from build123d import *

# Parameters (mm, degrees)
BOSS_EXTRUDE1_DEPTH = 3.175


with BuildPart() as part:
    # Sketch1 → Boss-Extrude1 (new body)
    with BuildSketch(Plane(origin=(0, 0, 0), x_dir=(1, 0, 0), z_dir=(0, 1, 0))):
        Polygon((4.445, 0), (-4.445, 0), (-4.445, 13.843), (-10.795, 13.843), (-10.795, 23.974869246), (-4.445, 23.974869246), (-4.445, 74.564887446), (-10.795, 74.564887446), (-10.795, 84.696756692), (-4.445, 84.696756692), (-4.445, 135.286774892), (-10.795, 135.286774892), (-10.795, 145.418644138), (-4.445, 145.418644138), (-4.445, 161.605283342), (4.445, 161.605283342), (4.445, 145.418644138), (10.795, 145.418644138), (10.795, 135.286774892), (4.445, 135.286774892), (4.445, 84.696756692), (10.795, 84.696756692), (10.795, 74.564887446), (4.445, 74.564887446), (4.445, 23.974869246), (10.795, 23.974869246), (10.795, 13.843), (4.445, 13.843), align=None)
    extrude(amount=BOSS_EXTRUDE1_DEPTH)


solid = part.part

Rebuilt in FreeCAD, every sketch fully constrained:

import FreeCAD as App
import Part
import Sketcher
Q = App.Units.Quantity


def add_polygon(sketch, points):
    """Adds a closed chain of lines whose ends are joined by coincident constraints."""
    first, n = sketch.GeometryCount, len(points)
    for a, b in zip(points, points[1:] + points[:1]):
        sketch.addGeometry(Part.LineSegment(App.Vector(*a, 0), App.Vector(*b, 0)), False)
    for i in range(n):
        sketch.addConstraint(Sketcher.Constraint("Coincident", first + i, 2, first + (i + 1) % n, 1))

doc = App.newDocument("Part")
body = doc.addObject("PartDesign::Body", "Body")

sketch1 = doc.addObject("Sketcher::SketchObject", "Sketch")
body.addObject(sketch1)
sketch1.AttachmentSupport = (doc.XZ_Plane, [""])
sketch1.MapMode = "FlatFace"
add_polygon(sketch1, [(-4, 0), (4, 0), (4, -14), (11, -14), (11, -24), (4, -24), (4, -75), (11, -75), (11, -85), (4, -85), (4, -135), (11, -135), (11, -145), (4, -145), (4, -162), (-4, -162), (-4, -145), (-11, -145), (-11, -135), (-4, -135), (-4, -85), (-11, -85), (-11, -75), (-4, -75), (-4, -24), (-11, -24), (-11, -14), (-4, -14)])
sketch1.addConstraint([
    Sketcher.Constraint("Horizontal", 0),
    Sketcher.Constraint("Vertical", 1),
    Sketcher.Constraint("Horizontal", 2),
    Sketcher.Constraint("Vertical", 3),
    Sketcher.Constraint("Horizontal", 4),
    Sketcher.Constraint("Vertical", 5),
    Sketcher.Constraint("Horizontal", 6),
    Sketcher.Constraint("Vertical", 7),
    Sketcher.Constraint("Horizontal", 8),
    Sketcher.Constraint("Vertical", 9),
    Sketcher.Constraint("Horizontal", 10),
    Sketcher.Constraint("Vertical", 11),
    Sketcher.Constraint("Horizontal", 12),
    Sketcher.Constraint("Vertical", 13),
    Sketcher.Constraint("Horizontal", 14),
    Sketcher.Constraint("Vertical", 15),
    Sketcher.Constraint("Horizontal", 16),
    Sketcher.Constraint("Vertical", 17),
    Sketcher.Constraint("Horizontal", 18),
    Sketcher.Constraint("Vertical", 19),
    Sketcher.Constraint("Horizontal", 20),
    Sketcher.Constraint("Vertical", 21),
    Sketcher.Constraint("Horizontal", 22),
    Sketcher.Constraint("Vertical", 23),
    Sketcher.Constraint("Horizontal", 24),
    Sketcher.Constraint("Vertical", 25),
    Sketcher.Constraint("Horizontal", 26),
    Sketcher.Constraint("Vertical", 27),
    Sketcher.Constraint("Symmetric", 0, 2, 27, 2, -1, 1),
    Sketcher.Constraint("Symmetric", 12, 2, 15, 2, -2),
    Sketcher.Constraint("Symmetric", 10, 2, 17, 2, -2),
    Sketcher.Constraint("Symmetric", 8, 2, 19, 2, -2),
    Sketcher.Constraint("Symmetric", 6, 2, 21, 2, -2),
    Sketcher.Constraint("Symmetric", 4, 2, 23, 2, -2),
    Sketcher.Constraint("Symmetric", 2, 2, 25, 2, -2),
    Sketcher.Constraint("Vertical", 1, 2, 4, 2),
    Sketcher.Constraint("Vertical", 3, 2, 6, 2),
    Sketcher.Constraint("Vertical", 5, 2, 8, 2),
    Sketcher.Constraint("Vertical", 7, 2, 10, 2),
    Sketcher.Constraint("Vertical", 9, 2, 12, 2),
    Sketcher.Constraint("Equal", 3, 7),
    Sketcher.Constraint("Equal", 5, 9),
    Sketcher.Constraint("Equal", 7, 11),
    Sketcher.Constraint("DistanceX", 0, 1, 0, 2, Q("0.35 in")),
    Sketcher.Constraint("DistanceX", 2, 1, 2, 2, Q("0.25 in")),
    Sketcher.Constraint("DistanceY", 1, 2, 1, 1, Q("0.545 in")),
    Sketcher.Constraint("DistanceY", 3, 2, 3, 1, 10.131869),
    Sketcher.Constraint("DistanceY", 5, 2, 5, 1, 50.590018),
    Sketcher.Constraint("DistanceY", 13, 2, 13, 1, 16.186639),
])
pad1 = doc.addObject("PartDesign::Pad", "Pad")
body.addObject(pad1)
pad1.Profile = sketch1
pad1.Length = Q("0.125 in")
pad1.Reversed = True

doc.recompute()
